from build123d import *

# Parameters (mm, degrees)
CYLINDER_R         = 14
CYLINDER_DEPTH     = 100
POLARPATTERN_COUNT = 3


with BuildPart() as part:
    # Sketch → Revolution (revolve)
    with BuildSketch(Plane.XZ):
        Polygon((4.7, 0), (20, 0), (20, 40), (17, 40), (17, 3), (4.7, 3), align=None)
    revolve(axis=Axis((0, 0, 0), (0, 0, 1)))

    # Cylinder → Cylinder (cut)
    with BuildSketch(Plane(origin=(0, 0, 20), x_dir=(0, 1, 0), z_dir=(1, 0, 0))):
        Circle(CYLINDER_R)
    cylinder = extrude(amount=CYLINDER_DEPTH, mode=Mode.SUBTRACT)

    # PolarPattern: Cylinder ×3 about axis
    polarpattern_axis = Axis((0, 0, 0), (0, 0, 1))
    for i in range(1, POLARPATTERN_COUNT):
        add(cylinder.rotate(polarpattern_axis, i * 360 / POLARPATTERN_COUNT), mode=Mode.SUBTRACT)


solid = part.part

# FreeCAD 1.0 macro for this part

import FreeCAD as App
import Part
import Sketcher
from FreeCAD import Vector
Q = App.Units.Quantity


def add_polygon(sketch, points):
    """Adds a closed chain of lines whose ends are joined by coincident constraints."""
    first, n = sketch.GeometryCount, len(points)
    for a, b in zip(points, points[1:] + points[:1]):
        sketch.addGeometry(Part.LineSegment(App.Vector(*a, 0), App.Vector(*b, 0)), False)
    for i in range(n):
        sketch.addConstraint(Sketcher.Constraint("Coincident", first + i, 2, first + (i + 1) % n, 1))

doc = App.newDocument("Part")
body = doc.addObject("PartDesign::Body", "Body")

# Sketch on XZ plane
sketch1 = doc.addObject("Sketcher::SketchObject", "Sketch")
body.addObject(sketch1)
sketch1.AttachmentSupport = (doc.XZ_Plane, [""])
sketch1.MapMode = "FlatFace"
add_polygon(sketch1, [(4.7, 0), (20, 0), (20, 40), (17, 40), (17, 3), (4.7, 3)])  # lines 0-5
sketch1.addConstraint([
    Sketcher.Constraint("Horizontal", 0),
    Sketcher.Constraint("Vertical", 1),
    Sketcher.Constraint("Horizontal", 2),
    Sketcher.Constraint("Vertical", 3),
    Sketcher.Constraint("Horizontal", 4),
    Sketcher.Constraint("Vertical", 5),
    Sketcher.Constraint("PointOnObject", 0, 2, -1),
    Sketcher.Constraint("Equal", 2, 5),
    Sketcher.Constraint("DistanceX", 2, 2, 2, 1, Q("3 mm")),
    Sketcher.Constraint("DistanceY", 1, 1, 1, 2, Q("40 mm")),
    Sketcher.Constraint("DistanceX", 0, 1, 0, 2, Q("15.3 mm")),
    Sketcher.Constraint("DistanceX", -1, 1, 0, 2, Q("20 mm")),
])
revolution = doc.addObject("PartDesign::Revolution", "Revolution")
body.addObject(revolution)
revolution.Profile = sketch1
revolution.ReferenceAxis = (sketch1, ["V_Axis"])
revolution.Angle = 360

# Sketch on YZ plane
sketch2 = doc.addObject("Sketcher::SketchObject", "Sketch001")
body.addObject(sketch2)
sketch2.AttachmentSupport = (doc.YZ_Plane, [""])
sketch2.MapMode = "FlatFace"
sketch2.addGeometry(Part.Circle(Vector(0, 20, 0), Vector(0, 0, 1), 14), False)
sketch2.addConstraint([
    Sketcher.Constraint("PointOnObject", 0, 3, -2),
    Sketcher.Constraint("Diameter", 0, Q("28 mm")),
    Sketcher.Constraint("DistanceY", -1, 1, 0, 3, Q("20 mm")),
])
pocket1 = doc.addObject("PartDesign::Pocket", "Pocket")
body.addObject(pocket1)
pocket1.Profile = sketch2
pocket1.Length = 100
pocket1.Reversed = True
doc.recompute()

polarpattern = doc.addObject("PartDesign::PolarPattern", "PolarPattern")
body.addObject(polarpattern)
polarpattern.Originals = [pocket1]
polarpattern.Axis = (doc.Z_Axis, [""])
polarpattern.Angle = 360
polarpattern.Occurrences = 3
body.Tip = polarpattern

doc.recompute()
